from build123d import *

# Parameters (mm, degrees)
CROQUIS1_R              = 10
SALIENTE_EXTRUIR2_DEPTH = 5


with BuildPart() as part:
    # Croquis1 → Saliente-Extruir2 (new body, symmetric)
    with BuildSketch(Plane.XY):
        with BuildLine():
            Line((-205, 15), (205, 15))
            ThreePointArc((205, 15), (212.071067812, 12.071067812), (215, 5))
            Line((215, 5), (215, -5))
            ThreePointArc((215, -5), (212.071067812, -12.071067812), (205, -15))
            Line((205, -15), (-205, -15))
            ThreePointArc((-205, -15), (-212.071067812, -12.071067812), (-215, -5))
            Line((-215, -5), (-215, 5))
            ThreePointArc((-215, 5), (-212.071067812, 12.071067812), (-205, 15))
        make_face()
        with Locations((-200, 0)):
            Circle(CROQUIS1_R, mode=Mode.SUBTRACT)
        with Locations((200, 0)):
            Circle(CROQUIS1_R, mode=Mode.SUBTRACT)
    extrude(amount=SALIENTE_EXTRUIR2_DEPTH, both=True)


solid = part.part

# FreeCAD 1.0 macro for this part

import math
import FreeCAD as App
import Part
import Sketcher
Q = App.Units.Quantity

doc = App.newDocument("Part")
params = doc.addObject("Spreadsheet::Sheet", "Params")
for row, (alias, value) in enumerate([
    ("sketch1_diameter", "20 mm"),
    ("sketch1_width", "410 mm"),
    ("sketch1_height", "10 mm"),
    ("pad1_length", "10 mm"),
], start=1):
    params.set(f"A{row}", alias)
    params.set(f"B{row}", "=" + value)
    params.setAlias(f"B{row}", alias)

body = doc.addObject("PartDesign::Body", "Body")

# Sketch on XY plane
sketch1 = body.newObject("Sketcher::SketchObject", "Sketch")
sketch1.AttachmentSupport = (doc.getObject("XY_Plane"), [""])
sketch1.MapMode = "FlatFace"
sketch1.addGeometry([
    Part.LineSegment(App.Vector(205, 15, 0), App.Vector(-205, 15, 0)),  # 0
    Part.ArcOfCircle(Part.Circle(App.Vector(-205, 5, 0), App.Vector(0, 0, 1), 10), math.radians(90), math.radians(180)),  # 1
    Part.LineSegment(App.Vector(-215, 5, 0), App.Vector(-215, -5, 0)),  # 2
    Part.ArcOfCircle(Part.Circle(App.Vector(-205, -5, 0), App.Vector(0, 0, 1), 10), math.radians(180), math.radians(270)),  # 3
    Part.LineSegment(App.Vector(-205, -15, 0), App.Vector(205, -15, 0)),  # 4
    Part.ArcOfCircle(Part.Circle(App.Vector(205, -5, 0), App.Vector(0, 0, 1), 10), math.radians(-90), math.radians(0)),  # 5
    Part.LineSegment(App.Vector(215, -5, 0), App.Vector(215, 5, 0)),  # 6
    Part.ArcOfCircle(Part.Circle(App.Vector(205, 5, 0), App.Vector(0, 0, 1), 10), math.radians(0), math.radians(90)),  # 7
    Part.Circle(App.Vector(200, 0, 0), App.Vector(0, 0, 1), 10),  # 8
    Part.Circle(App.Vector(-200, 0, 0), App.Vector(0, 0, 1), 10),  # 9
], False)
sketch1.addConstraint([
    Sketcher.Constraint("Tangent", 0, 2, 1, 1),
    Sketcher.Constraint("Tangent", 1, 2, 2, 1),
    Sketcher.Constraint("Tangent", 2, 2, 3, 1),
    Sketcher.Constraint("Tangent", 3, 2, 4, 1),
    Sketcher.Constraint("Tangent", 4, 2, 5, 1),
    Sketcher.Constraint("Tangent", 5, 2, 6, 1),
    Sketcher.Constraint("Tangent", 6, 2, 7, 1),
    Sketcher.Constraint("Tangent", 7, 2, 0, 1),
    Sketcher.Constraint("Horizontal", 0),
    Sketcher.Constraint("Vertical", 2),
    Sketcher.Constraint("Horizontal", 4),
    Sketcher.Constraint("Vertical", 6),
    Sketcher.Constraint("Equal", 1, 3),
    Sketcher.Constraint("Equal", 3, 5),
    Sketcher.Constraint("Equal", 5, 7),
    Sketcher.Constraint("Equal", 7, 8),
    Sketcher.Constraint("Equal", 8, 9),
    Sketcher.Constraint("Symmetric", 1, 3, 5, 3, -1, 1),
    Sketcher.Constraint("Symmetric", 8, 3, 9, 3, -1, 1),
    Sketcher.Constraint("PointOnObject", 8, 3, -1),
    Sketcher.Constraint("Diameter", 8, Q("20 mm")),
    Sketcher.Constraint("DistanceX", 0, 2, 0, 1, Q("410 mm")),
    Sketcher.Constraint("DistanceY", 2, 2, 2, 1, Q("10 mm")),
    Sketcher.Constraint("DistanceX", -1, 1, 8, 3, Q("200 mm")),
])
sketch1.setExpression("Constraints[20]", "Params.sketch1_diameter")
sketch1.setExpression("Constraints[21]", "Params.sketch1_width")
sketch1.setExpression("Constraints[22]", "Params.sketch1_height")
pad1 = body.newObject("PartDesign::Pad", "Pad")
pad1.Profile = sketch1
pad1.setExpression("Length", "Params.pad1_length")
pad1.Midplane = True

doc.recompute()
